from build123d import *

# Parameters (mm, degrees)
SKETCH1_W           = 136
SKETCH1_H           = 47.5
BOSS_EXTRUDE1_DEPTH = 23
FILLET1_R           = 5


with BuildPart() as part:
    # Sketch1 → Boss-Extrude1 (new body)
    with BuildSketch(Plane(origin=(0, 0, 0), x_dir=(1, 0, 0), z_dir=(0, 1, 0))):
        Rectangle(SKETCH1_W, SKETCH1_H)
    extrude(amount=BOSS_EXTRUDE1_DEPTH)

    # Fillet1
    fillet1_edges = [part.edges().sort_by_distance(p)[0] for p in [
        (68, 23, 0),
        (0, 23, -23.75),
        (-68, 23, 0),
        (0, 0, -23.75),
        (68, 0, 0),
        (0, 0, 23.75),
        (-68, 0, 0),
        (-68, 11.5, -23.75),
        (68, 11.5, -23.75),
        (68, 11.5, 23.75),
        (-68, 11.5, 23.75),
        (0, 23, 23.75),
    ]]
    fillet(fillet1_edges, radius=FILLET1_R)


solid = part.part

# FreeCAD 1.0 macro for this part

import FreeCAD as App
import Part
import Sketcher

V = App.Vector
Q = App.Units.Quantity

doc = App.newDocument("Part")
body = doc.addObject("PartDesign::Body", "Body")

# Sketch on XZ plane
sketch1 = doc.addObject("Sketcher::SketchObject", "Sketch")
body.addObject(sketch1)
sketch1.AttachmentSupport = (doc.XZ_Plane, [""])
sketch1.MapMode = "FlatFace"
sketch1.addGeometry([
    Part.LineSegment(V(-68, -24, 0), V(-68, 24, 0)),
    Part.LineSegment(V(-68, 24, 0), V(68, 24, 0)),
    Part.LineSegment(V(68, 24, 0), V(68, -24, 0)),
    Part.LineSegment(V(68, -24, 0), V(-68, -24, 0)),
], False)
sketch1.addConstraint([
    Sketcher.Constraint("Coincident", 0, 2, 1, 1),
    Sketcher.Constraint("Coincident", 1, 2, 2, 1),
    Sketcher.Constraint("Coincident", 2, 2, 3, 1),
    Sketcher.Constraint("Coincident", 3, 2, 0, 1),
    Sketcher.Constraint("Vertical", 0),
    Sketcher.Constraint("Horizontal", 1),
    Sketcher.Constraint("Vertical", 2),
    Sketcher.Constraint("Horizontal", 3),
    Sketcher.Constraint("Symmetric", 0, 2, 2, 2, -1, 1),
    Sketcher.Constraint("DistanceX", 1, 1, 1, 2, Q("136 mm")),
    Sketcher.Constraint("DistanceY", 0, 1, 0, 2, Q("47.5 mm")),
])
pad1 = doc.addObject("PartDesign::Pad", "Pad")
body.addObject(pad1)
pad1.Profile = sketch1
pad1.Length = 23
pad1.Reversed = True
doc.recompute()

fillet = doc.addObject("PartDesign::Fillet", "Fillet")
body.addObject(fillet)
fillet.Base = (pad1, ["Edge1"])
fillet.UseAllEdges = True
fillet.Radius = 5

doc.recompute()
